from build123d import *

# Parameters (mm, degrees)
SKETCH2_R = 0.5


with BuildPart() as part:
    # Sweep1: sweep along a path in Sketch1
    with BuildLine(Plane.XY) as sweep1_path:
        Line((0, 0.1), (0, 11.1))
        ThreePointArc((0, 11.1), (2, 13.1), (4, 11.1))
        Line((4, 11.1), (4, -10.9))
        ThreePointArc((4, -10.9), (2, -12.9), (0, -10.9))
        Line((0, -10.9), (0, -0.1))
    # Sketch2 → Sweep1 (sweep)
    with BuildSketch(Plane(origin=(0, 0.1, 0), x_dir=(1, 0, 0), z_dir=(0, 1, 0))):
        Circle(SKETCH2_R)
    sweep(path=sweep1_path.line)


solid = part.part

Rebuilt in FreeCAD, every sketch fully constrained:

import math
import FreeCAD as App
import Part
import Sketcher
from FreeCAD import Vector
Q = App.Units.Quantity

doc = App.newDocument("Part")
body = doc.addObject("PartDesign::Body", "Body")

# Sketch on XZ plane
sketch1 = doc.addObject("Sketcher::SketchObject", "Sketch")
body.addObject(sketch1)
sketch1.AttachmentSupport = (doc.XZ_Plane, [""])
sketch1.MapMode = "FlatFace"
sketch1.AttachmentOffset = App.Placement(Vector(0, 0, -0.1), App.Rotation())
sketch1.addGeometry(Part.Circle(Vector(0, 0, 0), Vector(0, 0, 1), 0.5), False)
sketch1.addConstraint([
    Sketcher.Constraint("Coincident", 0, 3, -1, 1),
    Sketcher.Constraint("Diameter", 0, Q("1 mm")),
])

# Sketch on XY plane
sketch2 = doc.addObject("Sketcher::SketchObject", "Sketch001")
body.addObject(sketch2)
sketch2.AttachmentSupport = (doc.XY_Plane, [""])
sketch2.MapMode = "FlatFace"
sketch2.addGeometry([
    Part.LineSegment(Vector(0, 0.1, 0), Vector(0, 11.1, 0)),  # 0
    Part.ArcOfCircle(Part.Circle(Vector(2, 11.1, 0), Vector(0, 0, 1), 2), math.radians(0), math.radians(180)),  # 1
    Part.LineSegment(Vector(4, 11.1, 0), Vector(4, -10.9, 0)),  # 2
    Part.ArcOfCircle(Part.Circle(Vector(2, -10.9, 0), Vector(0, 0, 1), 2), math.radians(180), math.radians(360)),  # 3
    Part.LineSegment(Vector(0, -10.9, 0), Vector(0, -0.1, 0)),  # 4
], False)
sketch2.addConstraint([
    Sketcher.Constraint("Tangent", 0, 2, 1, 2),
    Sketcher.Constraint("Tangent", 1, 1, 2, 1),
    Sketcher.Constraint("Tangent", 2, 2, 3, 2),
    Sketcher.Constraint("Tangent", 3, 1, 4, 1),
    Sketcher.Constraint("Vertical", 0),
    Sketcher.Constraint("Vertical", 2),
    Sketcher.Constraint("Vertical", 4),
    Sketcher.Constraint("Equal", 1, 3),
    Sketcher.Constraint("Symmetric", 0, 1, 4, 2, -1, 1),
    Sketcher.Constraint("Radius", 1, Q("2 mm")),
    Sketcher.Constraint("DistanceY", 0, 1, 0, 2, Q("11 mm")),
    Sketcher.Constraint("DistanceY", 2, 2, 2, 1, Q("22 mm")),
    Sketcher.Constraint("DistanceY", 4, 1, 4, 2, Q("10.8 mm")),
])
doc.recompute()

additivepipe = doc.addObject("PartDesign::AdditivePipe", "AdditivePipe")
body.addObject(additivepipe)
additivepipe.Profile = sketch1
additivepipe.Spine = (sketch2, ["Edge1", "Edge2", "Edge3", "Edge4", "Edge5"])

doc.recompute()
